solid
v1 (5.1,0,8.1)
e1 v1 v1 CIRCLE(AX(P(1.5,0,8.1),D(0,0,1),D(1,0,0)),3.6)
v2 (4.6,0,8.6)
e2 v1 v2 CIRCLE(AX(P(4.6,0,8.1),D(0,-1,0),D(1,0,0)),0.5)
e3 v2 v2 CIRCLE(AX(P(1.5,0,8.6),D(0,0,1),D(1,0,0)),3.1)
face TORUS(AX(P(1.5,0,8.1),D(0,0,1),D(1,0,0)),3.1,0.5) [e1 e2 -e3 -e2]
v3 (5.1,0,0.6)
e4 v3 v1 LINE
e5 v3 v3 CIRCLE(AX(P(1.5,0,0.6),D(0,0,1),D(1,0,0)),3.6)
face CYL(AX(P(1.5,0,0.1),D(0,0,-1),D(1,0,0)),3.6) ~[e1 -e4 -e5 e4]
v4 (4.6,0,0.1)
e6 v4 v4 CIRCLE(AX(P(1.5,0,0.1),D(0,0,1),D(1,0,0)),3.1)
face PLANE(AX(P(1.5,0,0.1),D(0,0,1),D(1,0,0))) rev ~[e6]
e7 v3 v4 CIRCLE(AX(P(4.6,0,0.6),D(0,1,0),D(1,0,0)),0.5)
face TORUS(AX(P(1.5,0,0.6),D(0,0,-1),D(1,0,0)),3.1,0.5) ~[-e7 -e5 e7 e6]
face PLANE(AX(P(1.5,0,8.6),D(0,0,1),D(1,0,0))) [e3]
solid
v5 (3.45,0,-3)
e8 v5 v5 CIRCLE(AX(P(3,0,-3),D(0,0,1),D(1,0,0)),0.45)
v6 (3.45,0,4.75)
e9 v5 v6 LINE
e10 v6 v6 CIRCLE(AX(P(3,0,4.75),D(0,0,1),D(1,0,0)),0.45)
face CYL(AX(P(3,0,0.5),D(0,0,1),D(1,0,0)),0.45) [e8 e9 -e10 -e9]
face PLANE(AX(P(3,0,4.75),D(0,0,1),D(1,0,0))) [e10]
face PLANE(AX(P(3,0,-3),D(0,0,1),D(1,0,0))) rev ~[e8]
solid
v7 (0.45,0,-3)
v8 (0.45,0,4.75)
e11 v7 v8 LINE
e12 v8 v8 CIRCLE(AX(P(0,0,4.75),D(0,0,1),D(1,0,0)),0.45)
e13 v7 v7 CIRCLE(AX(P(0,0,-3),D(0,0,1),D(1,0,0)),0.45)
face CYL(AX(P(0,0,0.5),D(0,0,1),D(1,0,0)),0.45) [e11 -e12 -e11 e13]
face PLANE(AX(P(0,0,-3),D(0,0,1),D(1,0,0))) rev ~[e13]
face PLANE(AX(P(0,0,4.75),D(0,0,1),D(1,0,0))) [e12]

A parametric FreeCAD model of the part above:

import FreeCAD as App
import Part
import Sketcher
from FreeCAD import Vector


def edges_at(feature, points):
    """Names of the edges that pass closest to the given points."""
    edges = feature.Shape.Edges
    near = lambda p: min(range(len(edges)), key=lambda i: edges[i].distToShape(Part.Vertex(*p))[0])
    return sorted({f"Edge{near(p) + 1}" for p in points})

doc = App.newDocument("Part")
params = doc.addObject("Spreadsheet::Sheet", "Params")
for row, (alias, value) in enumerate([
    ("sketch1_diameter", "0.9 mm"),
    ("pad1_length", "4.25 mm"),
    ("pad1_length2", "3.5 mm"),
    ("sketch2_diameter", "7.2 mm"),
    ("pad2_length", "8.5 mm"),
    ("fillet_radius", "0.5 mm"),
], start=1):
    params.set(f"A{row}", alias)
    params.set(f"B{row}", "=" + value)
    params.setAlias(f"B{row}", alias)

body = doc.addObject("PartDesign::Body", "Body")
body.AllowCompound = True

# Sketch on XY plane
sketch1 = doc.addObject("Sketcher::SketchObject", "Sketch")
body.addObject(sketch1)
sketch1.AttachmentSupport = (doc.XY_Plane, [""])
sketch1.MapMode = "FlatFace"
sketch1.AttachmentOffset = App.Placement(Vector(0, 0, 0.5), App.Rotation())
sketch1.addGeometry([
    Part.Circle(Vector(0, 0, 0), Vector(0, 0, 1), 0.45),
    Part.Circle(Vector(3, 0, 0), Vector(0, 0, 1), 0.45),
], False)
sketch1.addConstraint([
    Sketcher.Constraint("Coincident", 0, 3, -1, 1),
    Sketcher.Constraint("Equal", 0, 1),
    Sketcher.Constraint("PointOnObject", 1, 3, -1),
    Sketcher.Constraint("Diameter", 0, 0.9),
    Sketcher.Constraint("DistanceX", -1, 1, 1, 3, 3.0),
])
sketch1.setExpression("Constraints[3]", "Params.sketch1_diameter")
pad1 = doc.addObject("PartDesign::Pad", "Pad")
body.addObject(pad1)
pad1.Profile = sketch1
pad1.Type = "TwoLengths"
pad1.setExpression("Length", "Params.pad1_length")
pad1.setExpression("Length2", "Params.pad1_length2")
body2 = doc.addObject("PartDesign::Body", "Body001")

# Sketch on XY plane
sketch2 = doc.addObject("Sketcher::SketchObject", "Sketch001")
body2.addObject(sketch2)
sketch2.AttachmentSupport = (doc.getObject("XY_Plane001"), [""])
sketch2.MapMode = "FlatFace"
sketch2.AttachmentOffset = App.Placement(Vector(0, 0, 0.1), App.Rotation())
sketch2.addGeometry(Part.Circle(Vector(1.5, 0, 0), Vector(0, 0, 1), 3.6), False)
sketch2.addConstraint([
    Sketcher.Constraint("PointOnObject", 0, 3, -1),
    Sketcher.Constraint("Diameter", 0, 7.2),
    Sketcher.Constraint("DistanceX", -1, 1, 0, 3, 1.5),
])
sketch2.setExpression("Constraints[1]", "Params.sketch2_diameter")
pad2 = doc.addObject("PartDesign::Pad", "Pad001")
body2.addObject(pad2)
pad2.Profile = sketch2
pad2.setExpression("Length", "Params.pad2_length")
doc.recompute()

fillet = doc.addObject("PartDesign::Fillet", "Fillet")
body2.addObject(fillet)
fillet.Base = (pad2, edges_at(pad2, [(-2.1, 0, 0.1), (-2.1, 0, 8.6)]))
fillet.setExpression("Radius", "Params.fillet_radius")

doc.recompute()
